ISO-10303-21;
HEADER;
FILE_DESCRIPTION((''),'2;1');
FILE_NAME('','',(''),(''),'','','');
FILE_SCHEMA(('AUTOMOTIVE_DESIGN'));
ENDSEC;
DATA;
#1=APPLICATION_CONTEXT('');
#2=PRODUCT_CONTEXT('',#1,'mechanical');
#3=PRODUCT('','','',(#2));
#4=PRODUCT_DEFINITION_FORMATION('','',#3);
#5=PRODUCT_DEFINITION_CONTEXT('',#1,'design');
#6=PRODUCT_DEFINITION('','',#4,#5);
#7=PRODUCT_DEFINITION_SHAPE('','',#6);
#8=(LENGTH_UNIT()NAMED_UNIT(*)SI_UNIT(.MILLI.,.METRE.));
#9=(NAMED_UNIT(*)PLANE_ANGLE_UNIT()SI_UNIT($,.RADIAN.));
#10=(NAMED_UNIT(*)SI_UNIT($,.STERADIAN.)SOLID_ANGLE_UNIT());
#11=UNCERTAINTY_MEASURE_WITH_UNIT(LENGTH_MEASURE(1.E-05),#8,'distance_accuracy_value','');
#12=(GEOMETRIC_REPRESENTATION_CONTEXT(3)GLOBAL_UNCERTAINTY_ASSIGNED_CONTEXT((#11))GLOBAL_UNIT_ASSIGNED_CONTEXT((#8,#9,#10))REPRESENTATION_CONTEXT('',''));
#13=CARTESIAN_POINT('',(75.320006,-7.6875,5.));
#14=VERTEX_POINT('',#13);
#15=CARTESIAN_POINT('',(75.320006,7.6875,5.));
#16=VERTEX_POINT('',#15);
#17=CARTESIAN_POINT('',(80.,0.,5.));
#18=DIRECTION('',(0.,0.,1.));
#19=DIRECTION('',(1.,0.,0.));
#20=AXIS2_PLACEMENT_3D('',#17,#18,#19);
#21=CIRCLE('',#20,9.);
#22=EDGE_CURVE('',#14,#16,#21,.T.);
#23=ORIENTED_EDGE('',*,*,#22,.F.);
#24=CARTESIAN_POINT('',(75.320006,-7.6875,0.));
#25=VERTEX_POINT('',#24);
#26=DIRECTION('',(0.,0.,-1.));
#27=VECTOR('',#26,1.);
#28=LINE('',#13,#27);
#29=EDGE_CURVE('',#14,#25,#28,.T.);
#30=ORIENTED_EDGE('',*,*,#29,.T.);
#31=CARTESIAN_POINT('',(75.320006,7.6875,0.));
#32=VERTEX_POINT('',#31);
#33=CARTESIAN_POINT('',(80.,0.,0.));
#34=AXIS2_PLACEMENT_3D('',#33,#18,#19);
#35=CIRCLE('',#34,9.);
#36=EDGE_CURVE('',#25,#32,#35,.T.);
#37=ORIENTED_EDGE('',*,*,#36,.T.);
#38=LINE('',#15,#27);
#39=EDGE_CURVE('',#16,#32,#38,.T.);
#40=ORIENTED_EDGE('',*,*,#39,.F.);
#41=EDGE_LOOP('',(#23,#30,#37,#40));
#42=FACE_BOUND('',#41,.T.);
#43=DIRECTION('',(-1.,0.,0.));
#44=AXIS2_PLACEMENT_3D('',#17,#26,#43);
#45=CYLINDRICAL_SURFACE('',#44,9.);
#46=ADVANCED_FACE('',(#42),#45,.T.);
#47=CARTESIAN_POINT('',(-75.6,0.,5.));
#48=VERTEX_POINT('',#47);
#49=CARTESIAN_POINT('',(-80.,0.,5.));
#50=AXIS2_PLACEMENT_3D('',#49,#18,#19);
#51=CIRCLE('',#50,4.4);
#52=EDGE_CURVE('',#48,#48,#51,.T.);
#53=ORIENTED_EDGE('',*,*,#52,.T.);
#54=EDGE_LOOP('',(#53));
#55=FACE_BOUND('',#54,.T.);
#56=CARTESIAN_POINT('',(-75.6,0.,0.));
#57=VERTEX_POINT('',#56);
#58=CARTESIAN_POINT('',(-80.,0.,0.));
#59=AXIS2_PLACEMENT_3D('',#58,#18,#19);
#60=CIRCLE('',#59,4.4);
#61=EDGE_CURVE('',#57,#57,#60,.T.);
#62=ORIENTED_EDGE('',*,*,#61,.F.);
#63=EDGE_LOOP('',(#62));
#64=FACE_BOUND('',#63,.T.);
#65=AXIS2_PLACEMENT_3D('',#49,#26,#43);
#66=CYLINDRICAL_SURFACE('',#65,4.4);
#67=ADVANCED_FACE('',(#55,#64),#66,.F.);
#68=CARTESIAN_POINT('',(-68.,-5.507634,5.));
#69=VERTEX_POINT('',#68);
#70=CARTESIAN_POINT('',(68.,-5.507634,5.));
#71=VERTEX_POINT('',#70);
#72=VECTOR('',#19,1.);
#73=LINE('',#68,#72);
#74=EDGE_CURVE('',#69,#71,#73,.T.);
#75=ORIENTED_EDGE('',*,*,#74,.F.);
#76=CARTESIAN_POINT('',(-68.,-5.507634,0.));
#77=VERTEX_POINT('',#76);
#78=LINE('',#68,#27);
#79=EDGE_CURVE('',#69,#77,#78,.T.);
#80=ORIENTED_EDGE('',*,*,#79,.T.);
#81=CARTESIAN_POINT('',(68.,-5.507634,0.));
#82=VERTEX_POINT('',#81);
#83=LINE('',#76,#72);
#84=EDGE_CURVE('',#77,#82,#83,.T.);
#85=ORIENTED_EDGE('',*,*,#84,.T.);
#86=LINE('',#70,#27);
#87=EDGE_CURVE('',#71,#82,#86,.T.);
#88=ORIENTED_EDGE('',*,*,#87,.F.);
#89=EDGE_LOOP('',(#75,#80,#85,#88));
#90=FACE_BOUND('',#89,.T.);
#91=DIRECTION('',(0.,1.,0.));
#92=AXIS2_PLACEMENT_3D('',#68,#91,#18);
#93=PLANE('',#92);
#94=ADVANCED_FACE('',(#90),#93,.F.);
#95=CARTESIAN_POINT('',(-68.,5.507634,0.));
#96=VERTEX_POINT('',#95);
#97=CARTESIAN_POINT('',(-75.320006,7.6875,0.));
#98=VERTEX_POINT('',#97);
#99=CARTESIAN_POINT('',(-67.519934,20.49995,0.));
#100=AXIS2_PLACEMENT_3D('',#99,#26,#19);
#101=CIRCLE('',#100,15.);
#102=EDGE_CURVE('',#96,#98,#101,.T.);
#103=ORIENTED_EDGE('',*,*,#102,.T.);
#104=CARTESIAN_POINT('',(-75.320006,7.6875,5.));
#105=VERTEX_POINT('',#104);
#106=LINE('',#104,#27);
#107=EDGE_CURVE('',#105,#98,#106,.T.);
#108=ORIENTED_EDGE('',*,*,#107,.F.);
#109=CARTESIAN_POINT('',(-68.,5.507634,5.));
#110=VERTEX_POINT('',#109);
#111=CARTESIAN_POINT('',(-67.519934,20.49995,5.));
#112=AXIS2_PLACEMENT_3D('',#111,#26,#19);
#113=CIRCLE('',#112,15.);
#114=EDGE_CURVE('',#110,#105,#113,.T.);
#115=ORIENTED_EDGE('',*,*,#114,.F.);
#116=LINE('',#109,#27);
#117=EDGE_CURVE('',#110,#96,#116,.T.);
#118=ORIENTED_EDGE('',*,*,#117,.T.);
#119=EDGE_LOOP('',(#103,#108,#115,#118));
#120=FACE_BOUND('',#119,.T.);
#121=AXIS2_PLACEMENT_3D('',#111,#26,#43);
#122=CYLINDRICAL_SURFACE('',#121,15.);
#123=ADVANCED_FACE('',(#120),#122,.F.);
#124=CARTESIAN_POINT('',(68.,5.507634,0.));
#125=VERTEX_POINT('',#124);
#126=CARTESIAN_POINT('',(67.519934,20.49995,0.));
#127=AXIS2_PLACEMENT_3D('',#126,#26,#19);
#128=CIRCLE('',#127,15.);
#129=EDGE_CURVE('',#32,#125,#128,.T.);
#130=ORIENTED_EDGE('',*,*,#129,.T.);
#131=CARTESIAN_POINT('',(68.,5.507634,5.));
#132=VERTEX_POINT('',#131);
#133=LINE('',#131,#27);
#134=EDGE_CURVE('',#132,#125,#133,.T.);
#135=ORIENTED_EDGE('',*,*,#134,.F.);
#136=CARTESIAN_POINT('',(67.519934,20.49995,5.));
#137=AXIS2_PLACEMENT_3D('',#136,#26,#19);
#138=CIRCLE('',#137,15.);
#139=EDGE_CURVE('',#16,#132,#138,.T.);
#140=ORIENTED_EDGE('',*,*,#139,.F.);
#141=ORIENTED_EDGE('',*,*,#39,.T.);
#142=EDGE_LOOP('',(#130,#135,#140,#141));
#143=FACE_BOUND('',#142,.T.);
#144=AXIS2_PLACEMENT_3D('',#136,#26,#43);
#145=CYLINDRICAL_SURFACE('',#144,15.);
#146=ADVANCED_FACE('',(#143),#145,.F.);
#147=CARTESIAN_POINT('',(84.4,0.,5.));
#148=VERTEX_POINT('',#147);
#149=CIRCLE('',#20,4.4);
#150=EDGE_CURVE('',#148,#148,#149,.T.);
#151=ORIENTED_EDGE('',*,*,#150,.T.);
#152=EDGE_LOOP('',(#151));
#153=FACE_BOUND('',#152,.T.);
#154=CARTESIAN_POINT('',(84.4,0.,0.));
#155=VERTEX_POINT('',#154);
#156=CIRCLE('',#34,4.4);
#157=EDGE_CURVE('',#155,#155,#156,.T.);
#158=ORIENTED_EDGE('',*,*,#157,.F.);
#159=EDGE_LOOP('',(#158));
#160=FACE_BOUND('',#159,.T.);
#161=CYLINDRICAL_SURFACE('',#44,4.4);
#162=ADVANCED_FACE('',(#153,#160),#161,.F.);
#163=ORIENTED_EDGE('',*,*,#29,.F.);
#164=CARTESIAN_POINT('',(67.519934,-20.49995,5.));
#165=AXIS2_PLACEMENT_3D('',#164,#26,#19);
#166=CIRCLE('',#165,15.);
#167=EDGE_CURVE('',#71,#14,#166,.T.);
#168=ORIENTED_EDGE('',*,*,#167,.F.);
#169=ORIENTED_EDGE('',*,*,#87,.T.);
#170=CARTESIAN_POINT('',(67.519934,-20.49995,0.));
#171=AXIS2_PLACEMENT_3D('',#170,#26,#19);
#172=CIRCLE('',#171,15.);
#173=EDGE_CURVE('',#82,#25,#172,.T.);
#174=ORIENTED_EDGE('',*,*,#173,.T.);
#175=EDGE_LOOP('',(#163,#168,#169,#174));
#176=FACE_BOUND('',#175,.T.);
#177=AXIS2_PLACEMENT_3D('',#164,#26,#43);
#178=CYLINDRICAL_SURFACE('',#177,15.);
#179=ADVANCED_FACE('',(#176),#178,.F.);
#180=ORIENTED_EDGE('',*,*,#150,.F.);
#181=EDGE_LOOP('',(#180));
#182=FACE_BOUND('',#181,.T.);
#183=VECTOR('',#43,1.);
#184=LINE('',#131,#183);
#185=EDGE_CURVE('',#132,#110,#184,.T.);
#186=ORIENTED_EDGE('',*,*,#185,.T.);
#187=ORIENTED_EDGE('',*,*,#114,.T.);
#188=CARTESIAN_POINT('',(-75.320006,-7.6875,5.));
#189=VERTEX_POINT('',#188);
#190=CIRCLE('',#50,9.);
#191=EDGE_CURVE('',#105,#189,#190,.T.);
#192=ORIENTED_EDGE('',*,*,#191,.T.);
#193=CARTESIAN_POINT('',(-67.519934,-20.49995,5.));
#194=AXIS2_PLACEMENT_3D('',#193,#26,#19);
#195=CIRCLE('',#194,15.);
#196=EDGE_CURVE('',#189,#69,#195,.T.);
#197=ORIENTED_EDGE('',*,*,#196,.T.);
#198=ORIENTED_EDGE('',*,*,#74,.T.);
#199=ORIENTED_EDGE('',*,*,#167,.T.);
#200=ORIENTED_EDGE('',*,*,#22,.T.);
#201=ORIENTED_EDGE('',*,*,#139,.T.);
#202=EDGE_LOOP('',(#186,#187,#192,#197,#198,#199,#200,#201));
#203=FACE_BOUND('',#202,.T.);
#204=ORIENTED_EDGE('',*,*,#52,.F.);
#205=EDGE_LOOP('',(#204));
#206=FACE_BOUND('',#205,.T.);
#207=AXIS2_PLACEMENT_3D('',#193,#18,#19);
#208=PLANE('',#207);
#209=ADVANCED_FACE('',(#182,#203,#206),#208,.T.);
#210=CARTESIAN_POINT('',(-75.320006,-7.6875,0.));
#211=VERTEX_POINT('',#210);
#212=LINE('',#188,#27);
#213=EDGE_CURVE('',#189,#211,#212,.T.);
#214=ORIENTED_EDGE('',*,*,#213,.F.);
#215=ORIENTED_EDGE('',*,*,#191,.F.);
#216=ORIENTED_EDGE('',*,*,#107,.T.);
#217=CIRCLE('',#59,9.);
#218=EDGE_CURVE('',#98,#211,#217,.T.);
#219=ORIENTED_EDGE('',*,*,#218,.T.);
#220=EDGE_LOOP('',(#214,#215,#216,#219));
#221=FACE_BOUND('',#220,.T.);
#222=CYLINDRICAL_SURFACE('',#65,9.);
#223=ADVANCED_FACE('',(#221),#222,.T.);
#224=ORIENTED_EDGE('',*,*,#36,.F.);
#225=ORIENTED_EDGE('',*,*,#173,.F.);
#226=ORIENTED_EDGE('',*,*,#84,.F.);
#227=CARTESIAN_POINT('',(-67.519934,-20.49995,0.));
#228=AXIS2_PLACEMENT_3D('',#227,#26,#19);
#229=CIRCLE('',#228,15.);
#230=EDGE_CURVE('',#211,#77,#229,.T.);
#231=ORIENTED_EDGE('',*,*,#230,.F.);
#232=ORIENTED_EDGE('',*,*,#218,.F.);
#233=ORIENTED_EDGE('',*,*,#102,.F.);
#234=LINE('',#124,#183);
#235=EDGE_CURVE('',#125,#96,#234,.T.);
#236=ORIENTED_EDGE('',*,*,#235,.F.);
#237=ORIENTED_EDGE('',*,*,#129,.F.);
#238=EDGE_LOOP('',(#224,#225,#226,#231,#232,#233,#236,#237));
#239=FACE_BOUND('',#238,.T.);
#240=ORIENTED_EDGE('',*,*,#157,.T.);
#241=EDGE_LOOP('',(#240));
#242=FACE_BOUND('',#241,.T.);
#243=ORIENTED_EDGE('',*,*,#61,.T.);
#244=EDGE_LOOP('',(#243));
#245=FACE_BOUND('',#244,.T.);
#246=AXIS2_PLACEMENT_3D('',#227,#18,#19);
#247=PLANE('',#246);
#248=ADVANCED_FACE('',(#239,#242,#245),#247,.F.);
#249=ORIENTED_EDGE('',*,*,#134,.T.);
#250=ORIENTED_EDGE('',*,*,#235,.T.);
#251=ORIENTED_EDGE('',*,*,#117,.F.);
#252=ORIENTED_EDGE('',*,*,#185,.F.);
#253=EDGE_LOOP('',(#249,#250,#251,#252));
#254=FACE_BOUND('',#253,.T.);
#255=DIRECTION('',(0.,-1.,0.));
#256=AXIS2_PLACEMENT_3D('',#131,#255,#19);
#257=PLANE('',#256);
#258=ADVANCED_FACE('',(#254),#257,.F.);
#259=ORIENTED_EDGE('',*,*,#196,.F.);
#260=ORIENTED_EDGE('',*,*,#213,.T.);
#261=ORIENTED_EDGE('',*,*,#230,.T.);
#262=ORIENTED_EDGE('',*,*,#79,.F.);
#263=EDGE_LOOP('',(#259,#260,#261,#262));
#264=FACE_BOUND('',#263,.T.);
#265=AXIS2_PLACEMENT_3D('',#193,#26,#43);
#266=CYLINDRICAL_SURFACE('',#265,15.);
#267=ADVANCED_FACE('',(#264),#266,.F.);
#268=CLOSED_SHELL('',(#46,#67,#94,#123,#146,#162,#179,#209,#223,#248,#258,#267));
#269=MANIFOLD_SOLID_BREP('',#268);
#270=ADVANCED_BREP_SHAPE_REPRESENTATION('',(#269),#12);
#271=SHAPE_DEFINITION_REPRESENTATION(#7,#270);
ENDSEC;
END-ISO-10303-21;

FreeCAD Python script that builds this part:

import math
import FreeCAD as App
import Part
import Sketcher

doc = App.newDocument("Part")
params = doc.addObject("Spreadsheet::Sheet", "Params")
for row, (alias, value) in enumerate([
    ("sketch1_radius", "15 mm"),
    ("sketch1_radius2", "9 mm"),
    ("sketch1_diameter", "8.8 mm"),
    ("sketch1_width", "136 mm"),
    ("pad1_length", "5 mm"),
], start=1):
    params.set(f"A{row}", alias)
    params.set(f"B{row}", "=" + value)
    params.setAlias(f"B{row}", alias)

body = doc.addObject("PartDesign::Body", "Body")

sketch1 = body.newObject("Sketcher::SketchObject", "Sketch")
sketch1.AttachmentSupport = (doc.getObject("XY_Plane"), [""])
sketch1.MapMode = "FlatFace"
sketch1.addGeometry([
    Part.LineSegment(App.Vector(68, 5.5, 0), App.Vector(-68, 5.5, 0)),
    Part.ArcOfCircle(Part.Circle(App.Vector(-67.5, 20.5, 0), App.Vector(0, 0, 1), 15), math.radians(-121), math.radians(-92)),
    Part.ArcOfCircle(Part.Circle(App.Vector(-80, 0, 0), App.Vector(0, 0, 1), 9), math.radians(59), math.radians(301)),
    Part.ArcOfCircle(Part.Circle(App.Vector(-67.5, -20.5, 0), App.Vector(0, 0, 1), 15), math.radians(92), math.radians(121)),
    Part.LineSegment(App.Vector(-68, -5.5, 0), App.Vector(68, -5.5, 0)),
    Part.ArcOfCircle(Part.Circle(App.Vector(67.5, -20.5, 0), App.Vector(0, 0, 1), 15), math.radians(59), math.radians(88)),
    Part.ArcOfCircle(Part.Circle(App.Vector(80, 0, 0), App.Vector(0, 0, 1), 9), math.radians(-121), math.radians(121)),
    Part.ArcOfCircle(Part.Circle(App.Vector(67.5, 20.5, 0), App.Vector(0, 0, 1), 15), math.radians(-88), math.radians(-59)),
    Part.Circle(App.Vector(-80, 0, 0), App.Vector(0, 0, 1), 4.4),
    Part.Circle(App.Vector(80, 0, 0), App.Vector(0, 0, 1), 4.4),
], False)
sketch1.addConstraint([
    Sketcher.Constraint("Coincident", 0, 2, 1, 2),
    Sketcher.Constraint("Coincident", 1, 1, 2, 1),
    Sketcher.Constraint("Coincident", 2, 2, 3, 2),
    Sketcher.Constraint("Coincident", 3, 1, 4, 1),
    Sketcher.Constraint("Coincident", 4, 2, 5, 2),
    Sketcher.Constraint("Coincident", 5, 1, 6, 1),
    Sketcher.Constraint("Coincident", 6, 2, 7, 2),
    Sketcher.Constraint("Coincident", 7, 1, 0, 1),
    Sketcher.Constraint("Horizontal", 0),
    Sketcher.Constraint("Horizontal", 4),
    Sketcher.Constraint("Coincident", 8, 3, 2, 3),
    Sketcher.Constraint("Coincident", 9, 3, 6, 3),
    Sketcher.Constraint("Equal", 1, 3),
    Sketcher.Constraint("Equal", 3, 5),
    Sketcher.Constraint("Equal", 2, 6),
    Sketcher.Constraint("Equal", 5, 7),
    Sketcher.Constraint("Equal", 8, 9),
    Sketcher.Constraint("Symmetric", 1, 3, 5, 3, -1, 1),
    Sketcher.Constraint("Symmetric", 3, 3, 7, 3, -1, 1),
    Sketcher.Constraint("Symmetric", 3, 3, 5, 3, -2),
    Sketcher.Constraint("Horizontal", 2, 2, 5, 1),
    Sketcher.Constraint("Horizontal", 1, 1, 6, 2),
    Sketcher.Constraint("Vertical", 1, 1, 2, 2),
    Sketcher.Constraint("Vertical", 0, 2, 3, 1),
    Sketcher.Constraint("Radius", 1, 15.0),
    Sketcher.Constraint("Radius", 2, 9.0),
    Sketcher.Constraint("Diameter", 8, 8.8),
    Sketcher.Constraint("DistanceX", 0, 2, 0, 1, 136.0),
    Sketcher.Constraint("DistanceX", 2, 3, -1, 1, 80.0),
    Sketcher.Constraint("DistanceY", 2, 2, 1, 1, 15.375),
    Sketcher.Constraint("DistanceY", 3, 3, 1, 3, 40.9999),
])
sketch1.setExpression("Constraints[24]", "Params.sketch1_radius")
sketch1.setExpression("Constraints[25]", "Params.sketch1_radius2")
sketch1.setExpression("Constraints[26]", "Params.sketch1_diameter")
sketch1.setExpression("Constraints[27]", "Params.sketch1_width")
pad1 = body.newObject("PartDesign::Pad", "Pad")
pad1.Profile = sketch1
pad1.setExpression("Length", "Params.pad1_length")

doc.recompute()
